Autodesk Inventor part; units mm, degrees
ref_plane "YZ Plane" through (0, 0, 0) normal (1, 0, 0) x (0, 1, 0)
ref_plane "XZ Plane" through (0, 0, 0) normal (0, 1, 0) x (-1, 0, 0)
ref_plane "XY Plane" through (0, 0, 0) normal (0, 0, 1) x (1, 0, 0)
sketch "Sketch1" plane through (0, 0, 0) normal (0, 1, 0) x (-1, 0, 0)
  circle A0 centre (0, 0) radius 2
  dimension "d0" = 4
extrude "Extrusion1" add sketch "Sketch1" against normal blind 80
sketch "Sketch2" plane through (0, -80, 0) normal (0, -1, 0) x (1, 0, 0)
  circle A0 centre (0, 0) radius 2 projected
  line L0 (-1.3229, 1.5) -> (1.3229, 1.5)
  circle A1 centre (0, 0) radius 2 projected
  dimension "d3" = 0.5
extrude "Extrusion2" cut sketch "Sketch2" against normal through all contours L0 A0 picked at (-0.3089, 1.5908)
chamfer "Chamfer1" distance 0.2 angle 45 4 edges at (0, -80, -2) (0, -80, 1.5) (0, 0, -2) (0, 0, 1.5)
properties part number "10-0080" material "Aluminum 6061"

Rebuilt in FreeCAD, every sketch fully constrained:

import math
import FreeCAD as App
import Part
import Sketcher


def edges_at(feature, points):
    """Names of the edges that pass closest to the given points."""
    edges = feature.Shape.Edges
    near = lambda p: min(range(len(edges)), key=lambda i: edges[i].distToShape(Part.Vertex(*p))[0])
    return sorted({f"Edge{near(p) + 1}" for p in points})

doc = App.newDocument("Part")
body = doc.addObject("PartDesign::Body", "Body")

# Sketch on XZ plane
sketch1 = doc.addObject("Sketcher::SketchObject", "Sketch")
body.addObject(sketch1)
sketch1.AttachmentSupport = (doc.XZ_Plane, [""])
sketch1.MapMode = "FlatFace"
sketch1.addGeometry(Part.Circle(App.Vector(0, 0, 0), App.Vector(0, 0, 1), 2), False)
sketch1.addConstraint(Sketcher.Constraint("Coincident", 0, 3, -1, 1))
sketch1.addConstraint(Sketcher.Constraint("Diameter", 0, 4.0))
pad1 = doc.addObject("PartDesign::Pad", "Pad")
body.addObject(pad1)
pad1.Profile = sketch1
pad1.Length = 80

# Sketch on XZ plane
sketch2 = doc.addObject("Sketcher::SketchObject", "Sketch001")
body.addObject(sketch2)
sketch2.AttachmentSupport = (doc.XZ_Plane, [""])
sketch2.MapMode = "FlatFace"
sketch2.AttachmentOffset = App.Placement(App.Vector(0, 0, 80), App.Rotation())
sketch2.addGeometry(Part.LineSegment(App.Vector(-1.3229, 1.5, 0), App.Vector(1.3229, 1.5, 0)), False)
sketch2.addGeometry(Part.ArcOfCircle(Part.Circle(App.Vector(0, 0, 0), App.Vector(0, 0, 1), 2), math.radians(48.589855), math.radians(131.410145)), False)
sketch2.addConstraint(Sketcher.Constraint("Coincident", 0, 1, 1, 2))
sketch2.addConstraint(Sketcher.Constraint("Coincident", 1, 1, 0, 2))
sketch2.addConstraint(Sketcher.Constraint("Horizontal", 0))
sketch2.addConstraint(Sketcher.Constraint("Coincident", 1, 3, -1, 1))
sketch2.addConstraint(Sketcher.Constraint("Radius", 1, 2.0))
sketch2.addConstraint(Sketcher.Constraint("DistanceY", -1, 1, 0, 1, 1.5))
pocket1 = doc.addObject("PartDesign::Pocket", "Pocket")
body.addObject(pocket1)
pocket1.Profile = sketch2
pocket1.Type = "ThroughAll"
doc.recompute()

chamfer = doc.addObject("PartDesign::Chamfer", "Chamfer")
body.addObject(chamfer)
chamfer.Base = (pocket1, edges_at(pocket1, [
    (0, -80, -2),
    (0, -80, 1.5),
    (0, 0, -2),
    (0, 0, 1.5),
]))
chamfer.Size = 0.2

doc.recompute()
